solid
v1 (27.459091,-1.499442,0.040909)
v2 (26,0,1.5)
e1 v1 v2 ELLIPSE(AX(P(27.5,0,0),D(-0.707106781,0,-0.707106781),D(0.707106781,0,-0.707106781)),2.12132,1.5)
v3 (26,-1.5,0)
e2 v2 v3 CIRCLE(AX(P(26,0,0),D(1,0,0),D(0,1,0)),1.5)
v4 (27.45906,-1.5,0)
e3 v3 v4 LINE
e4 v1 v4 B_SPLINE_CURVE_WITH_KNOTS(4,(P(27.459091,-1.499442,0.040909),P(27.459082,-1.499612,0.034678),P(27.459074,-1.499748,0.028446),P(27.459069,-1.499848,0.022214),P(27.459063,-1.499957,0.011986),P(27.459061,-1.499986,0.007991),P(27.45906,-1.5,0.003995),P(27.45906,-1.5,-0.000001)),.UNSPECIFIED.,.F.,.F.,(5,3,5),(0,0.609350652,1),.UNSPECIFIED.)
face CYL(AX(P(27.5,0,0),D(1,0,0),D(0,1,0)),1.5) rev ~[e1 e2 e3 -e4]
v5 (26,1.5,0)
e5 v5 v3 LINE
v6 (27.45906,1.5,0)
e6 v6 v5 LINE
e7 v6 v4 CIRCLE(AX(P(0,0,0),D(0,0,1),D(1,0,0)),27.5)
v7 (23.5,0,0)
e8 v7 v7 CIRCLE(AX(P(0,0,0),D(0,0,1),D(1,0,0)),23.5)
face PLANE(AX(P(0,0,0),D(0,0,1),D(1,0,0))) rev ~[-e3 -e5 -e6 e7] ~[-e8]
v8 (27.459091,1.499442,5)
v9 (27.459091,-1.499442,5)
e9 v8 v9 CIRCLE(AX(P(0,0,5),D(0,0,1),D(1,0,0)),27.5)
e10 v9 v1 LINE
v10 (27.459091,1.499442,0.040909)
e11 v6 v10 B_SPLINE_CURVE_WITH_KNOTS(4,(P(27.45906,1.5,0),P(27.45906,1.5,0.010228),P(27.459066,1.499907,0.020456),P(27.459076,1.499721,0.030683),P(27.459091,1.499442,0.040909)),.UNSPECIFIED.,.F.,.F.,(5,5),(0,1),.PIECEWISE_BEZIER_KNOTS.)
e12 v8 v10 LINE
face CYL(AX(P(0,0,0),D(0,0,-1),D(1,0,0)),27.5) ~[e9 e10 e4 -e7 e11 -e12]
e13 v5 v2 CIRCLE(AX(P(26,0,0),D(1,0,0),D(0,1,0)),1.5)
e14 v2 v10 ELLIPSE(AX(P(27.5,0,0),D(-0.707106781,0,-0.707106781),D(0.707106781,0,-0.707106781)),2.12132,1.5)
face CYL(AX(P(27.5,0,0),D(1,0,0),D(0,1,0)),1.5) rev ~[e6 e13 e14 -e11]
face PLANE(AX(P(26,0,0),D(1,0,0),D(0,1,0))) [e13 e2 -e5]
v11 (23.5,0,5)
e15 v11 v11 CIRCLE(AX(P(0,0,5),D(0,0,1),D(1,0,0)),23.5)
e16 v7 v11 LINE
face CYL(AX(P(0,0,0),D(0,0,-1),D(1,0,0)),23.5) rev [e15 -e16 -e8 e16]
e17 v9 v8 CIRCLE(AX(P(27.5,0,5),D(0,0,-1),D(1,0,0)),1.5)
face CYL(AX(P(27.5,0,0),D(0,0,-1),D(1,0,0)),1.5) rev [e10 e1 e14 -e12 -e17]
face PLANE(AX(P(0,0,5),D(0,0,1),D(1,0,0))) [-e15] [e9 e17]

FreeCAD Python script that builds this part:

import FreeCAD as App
import Part
import Sketcher
from FreeCAD import Vector

doc = App.newDocument("Part")
params = doc.addObject("Spreadsheet::Sheet", "Params")
for row, (alias, value) in enumerate([
    ("sketch1_diameter", "55 mm"),
    ("sketch1_diameter2", "47 mm"),
    ("pad1_length", "5 mm"),
    ("sketch2_diameter", "3 mm"),
    ("pocket1_length", "10 mm"),
    ("sketch3_diameter", "3 mm"),
    ("pocket2_length", "1.5 mm"),
], start=1):
    params.set(f"A{row}", alias)
    params.set(f"B{row}", "=" + value)
    params.setAlias(f"B{row}", alias)

body = doc.addObject("PartDesign::Body", "Body")

# Sketch on XY plane
sketch1 = body.newObject("Sketcher::SketchObject", "Sketch")
sketch1.AttachmentSupport = (doc.getObject("XY_Plane"), [""])
sketch1.MapMode = "FlatFace"
sketch1.addGeometry(Part.Circle(Vector(0, 0, 0), Vector(0, 0, 1), 28), False)
sketch1.addGeometry(Part.Circle(Vector(0, 0, 0), Vector(0, 0, 1), 24), False)
sketch1.addConstraint(Sketcher.Constraint("Coincident", 0, 3, -1, 1))
sketch1.addConstraint(Sketcher.Constraint("Coincident", 1, 3, -1, 1))
sketch1.addConstraint(Sketcher.Constraint("Diameter", 0, 55.0))
sketch1.addConstraint(Sketcher.Constraint("Diameter", 1, 47.0))
sketch1.setExpression("Constraints[2]", "Params.sketch1_diameter")
sketch1.setExpression("Constraints[3]", "Params.sketch1_diameter2")
pad1 = body.newObject("PartDesign::Pad", "Pad")
pad1.Profile = sketch1
pad1.setExpression("Length", "Params.pad1_length")

# Sketch on XY plane
sketch2 = body.newObject("Sketcher::SketchObject", "Sketch001")
sketch2.AttachmentSupport = (doc.getObject("XY_Plane"), [""])
sketch2.MapMode = "FlatFace"
sketch2.addGeometry(Part.Circle(Vector(27.5, 0, 0), Vector(0, 0, 1), 1.5), False)
sketch2.addConstraint(Sketcher.Constraint("PointOnObject", 0, 3, -1))
sketch2.addConstraint(Sketcher.Constraint("Diameter", 0, 3.0))
sketch2.addConstraint(Sketcher.Constraint("DistanceX", -1, 1, 0, 3, 27.5))
sketch2.setExpression("Constraints[1]", "Params.sketch2_diameter")
pocket1 = body.newObject("PartDesign::Pocket", "Pocket")
pocket1.Profile = sketch2
pocket1.setExpression("Length", "Params.pocket1_length")
pocket1.Reversed = True

# Sketch on YZ plane
sketch3 = body.newObject("Sketcher::SketchObject", "Sketch002")
sketch3.AttachmentSupport = (doc.getObject("YZ_Plane"), [""])
sketch3.MapMode = "FlatFace"
sketch3.AttachmentOffset = App.Placement(Vector(0, 0, 27.5), App.Rotation())
sketch3.addGeometry(Part.Circle(Vector(0, 0, 0), Vector(0, 0, 1), 1.5), False)
sketch3.addConstraint(Sketcher.Constraint("Coincident", 0, 3, -1, 1))
sketch3.addConstraint(Sketcher.Constraint("Diameter", 0, 3.0))
sketch3.setExpression("Constraints[1]", "Params.sketch3_diameter")
pocket2 = body.newObject("PartDesign::Pocket", "Pocket001")
pocket2.Profile = sketch3
pocket2.setExpression("Length", "Params.pocket2_length")

doc.recompute()
